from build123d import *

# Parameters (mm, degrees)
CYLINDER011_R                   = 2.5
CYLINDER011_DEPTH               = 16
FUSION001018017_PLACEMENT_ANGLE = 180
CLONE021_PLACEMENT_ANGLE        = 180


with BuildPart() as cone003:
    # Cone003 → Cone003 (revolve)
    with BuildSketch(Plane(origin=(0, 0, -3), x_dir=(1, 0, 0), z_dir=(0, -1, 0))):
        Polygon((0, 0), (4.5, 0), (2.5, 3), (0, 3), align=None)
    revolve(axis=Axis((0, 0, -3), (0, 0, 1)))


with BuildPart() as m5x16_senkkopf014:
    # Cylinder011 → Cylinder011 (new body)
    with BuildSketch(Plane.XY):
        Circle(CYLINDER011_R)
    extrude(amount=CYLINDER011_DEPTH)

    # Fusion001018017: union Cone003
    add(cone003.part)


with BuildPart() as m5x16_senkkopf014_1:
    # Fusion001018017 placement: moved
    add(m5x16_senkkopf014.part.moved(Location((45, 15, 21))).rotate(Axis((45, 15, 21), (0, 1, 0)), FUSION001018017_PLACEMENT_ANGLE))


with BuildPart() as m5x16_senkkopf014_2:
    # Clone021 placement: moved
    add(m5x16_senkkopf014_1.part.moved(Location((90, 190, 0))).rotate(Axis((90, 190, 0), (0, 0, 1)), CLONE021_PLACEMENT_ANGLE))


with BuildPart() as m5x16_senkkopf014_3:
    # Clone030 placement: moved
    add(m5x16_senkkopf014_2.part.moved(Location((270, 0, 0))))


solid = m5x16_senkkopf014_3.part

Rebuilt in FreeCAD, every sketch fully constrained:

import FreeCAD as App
import Part
import Sketcher
Q = App.Units.Quantity


def add_polygon(sketch, points):
    """Adds a closed chain of lines whose ends are joined by coincident constraints."""
    first, n = sketch.GeometryCount, len(points)
    for a, b in zip(points, points[1:] + points[:1]):
        sketch.addGeometry(Part.LineSegment(App.Vector(*a, 0), App.Vector(*b, 0)), False)
    for i in range(n):
        sketch.addConstraint(Sketcher.Constraint("Coincident", first + i, 2, first + (i + 1) % n, 1))

doc = App.newDocument("Part")
params = doc.addObject("Spreadsheet::Sheet", "Params")
for row, (alias, value) in enumerate([
    ("sketch1_height", "3 mm"),
    ("sketch1_width", "4.5 mm"),
    ("sketch1_width2", "2.5 mm"),
    ("revolution_angle", "360 deg"),
    ("sketch2_diameter", "5 mm"),
    ("pad1_length", "16 mm"),
], start=1):
    params.set(f"A{row}", alias)
    params.set(f"B{row}", "=" + value)
    params.setAlias(f"B{row}", alias)

body = doc.addObject("PartDesign::Body", "Body")

sketch1 = doc.addObject("Sketcher::SketchObject", "Sketch")
body.addObject(sketch1)
sketch1.AttachmentSupport = (doc.XZ_Plane, [""])
sketch1.MapMode = "FlatFace"
add_polygon(sketch1, [(0, -3), (4.5, -3), (2.5, 0), (0, 0)])
sketch1.addConstraint(Sketcher.Constraint("Horizontal", 0))
sketch1.addConstraint(Sketcher.Constraint("Horizontal", 2))
sketch1.addConstraint(Sketcher.Constraint("Vertical", 3))
sketch1.addConstraint(Sketcher.Constraint("Coincident", 2, 2, -1, 1))
sketch1.addConstraint(Sketcher.Constraint("DistanceY", 3, 2, 3, 1, Q("3 mm")))
sketch1.addConstraint(Sketcher.Constraint("DistanceX", 0, 1, 0, 2, Q("4.5 mm")))
sketch1.addConstraint(Sketcher.Constraint("DistanceX", 2, 2, 2, 1, Q("2.5 mm")))
sketch1.setExpression("Constraints[8]", "Params.sketch1_height")
sketch1.setExpression("Constraints[9]", "Params.sketch1_width")
sketch1.setExpression("Constraints[10]", "Params.sketch1_width2")
revolution = doc.addObject("PartDesign::Revolution", "Revolution")
body.addObject(revolution)
revolution.Profile = sketch1
revolution.ReferenceAxis = (sketch1, ["V_Axis"])
revolution.setExpression("Angle", "Params.revolution_angle")
body2 = doc.addObject("PartDesign::Body", "Body001")

sketch2 = doc.addObject("Sketcher::SketchObject", "Sketch001")
body2.addObject(sketch2)
sketch2.AttachmentSupport = (doc.getObject("XY_Plane001"), [""])
sketch2.MapMode = "FlatFace"
sketch2.addGeometry(Part.Circle(App.Vector(0, 0, 0), App.Vector(0, 0, 1), 2.5), False)
sketch2.addConstraint(Sketcher.Constraint("Coincident", 0, 3, -1, 1))
sketch2.addConstraint(Sketcher.Constraint("Diameter", 0, Q("5 mm")))
sketch2.setExpression("Constraints[1]", "Params.sketch2_diameter")
pad1 = doc.addObject("PartDesign::Pad", "Pad")
body2.addObject(pad1)
pad1.Profile = sketch2
pad1.setExpression("Length", "Params.pad1_length")
doc.recompute()

boolean = doc.addObject("PartDesign::Boolean", "Boolean")
body2.addObject(boolean)
boolean.Type = "Fuse"
boolean.addObjects([body])
body3 = doc.addObject("PartDesign::Body", "Body002")
doc.recompute()

body2.Placement = App.Placement(App.Vector(45, 15, 21), App.Rotation(App.Vector(0, 1, 0), 180))
boolean2 = doc.addObject("PartDesign::Boolean", "Boolean001")
body3.addObject(boolean2)
boolean2.Type = "Fuse"
boolean2.addObjects([body2])
body4 = doc.addObject("PartDesign::Body", "Body003")
doc.recompute()

body3.Placement = App.Placement(App.Vector(90, 190, 0), App.Rotation(App.Vector(0, 0, 1), 180))
boolean3 = doc.addObject("PartDesign::Boolean", "Boolean002")
body4.addObject(boolean3)
boolean3.Type = "Fuse"
boolean3.addObjects([body3])
body5 = doc.addObject("PartDesign::Body", "Body004")
doc.recompute()

body4.Placement = App.Placement(App.Vector(270, 0, 0), App.Rotation(App.Vector(0, 0, 1), 0))
boolean4 = doc.addObject("PartDesign::Boolean", "Boolean003")
body5.addObject(boolean4)
boolean4.Type = "Fuse"
boolean4.addObjects([body4])

doc.recompute()
